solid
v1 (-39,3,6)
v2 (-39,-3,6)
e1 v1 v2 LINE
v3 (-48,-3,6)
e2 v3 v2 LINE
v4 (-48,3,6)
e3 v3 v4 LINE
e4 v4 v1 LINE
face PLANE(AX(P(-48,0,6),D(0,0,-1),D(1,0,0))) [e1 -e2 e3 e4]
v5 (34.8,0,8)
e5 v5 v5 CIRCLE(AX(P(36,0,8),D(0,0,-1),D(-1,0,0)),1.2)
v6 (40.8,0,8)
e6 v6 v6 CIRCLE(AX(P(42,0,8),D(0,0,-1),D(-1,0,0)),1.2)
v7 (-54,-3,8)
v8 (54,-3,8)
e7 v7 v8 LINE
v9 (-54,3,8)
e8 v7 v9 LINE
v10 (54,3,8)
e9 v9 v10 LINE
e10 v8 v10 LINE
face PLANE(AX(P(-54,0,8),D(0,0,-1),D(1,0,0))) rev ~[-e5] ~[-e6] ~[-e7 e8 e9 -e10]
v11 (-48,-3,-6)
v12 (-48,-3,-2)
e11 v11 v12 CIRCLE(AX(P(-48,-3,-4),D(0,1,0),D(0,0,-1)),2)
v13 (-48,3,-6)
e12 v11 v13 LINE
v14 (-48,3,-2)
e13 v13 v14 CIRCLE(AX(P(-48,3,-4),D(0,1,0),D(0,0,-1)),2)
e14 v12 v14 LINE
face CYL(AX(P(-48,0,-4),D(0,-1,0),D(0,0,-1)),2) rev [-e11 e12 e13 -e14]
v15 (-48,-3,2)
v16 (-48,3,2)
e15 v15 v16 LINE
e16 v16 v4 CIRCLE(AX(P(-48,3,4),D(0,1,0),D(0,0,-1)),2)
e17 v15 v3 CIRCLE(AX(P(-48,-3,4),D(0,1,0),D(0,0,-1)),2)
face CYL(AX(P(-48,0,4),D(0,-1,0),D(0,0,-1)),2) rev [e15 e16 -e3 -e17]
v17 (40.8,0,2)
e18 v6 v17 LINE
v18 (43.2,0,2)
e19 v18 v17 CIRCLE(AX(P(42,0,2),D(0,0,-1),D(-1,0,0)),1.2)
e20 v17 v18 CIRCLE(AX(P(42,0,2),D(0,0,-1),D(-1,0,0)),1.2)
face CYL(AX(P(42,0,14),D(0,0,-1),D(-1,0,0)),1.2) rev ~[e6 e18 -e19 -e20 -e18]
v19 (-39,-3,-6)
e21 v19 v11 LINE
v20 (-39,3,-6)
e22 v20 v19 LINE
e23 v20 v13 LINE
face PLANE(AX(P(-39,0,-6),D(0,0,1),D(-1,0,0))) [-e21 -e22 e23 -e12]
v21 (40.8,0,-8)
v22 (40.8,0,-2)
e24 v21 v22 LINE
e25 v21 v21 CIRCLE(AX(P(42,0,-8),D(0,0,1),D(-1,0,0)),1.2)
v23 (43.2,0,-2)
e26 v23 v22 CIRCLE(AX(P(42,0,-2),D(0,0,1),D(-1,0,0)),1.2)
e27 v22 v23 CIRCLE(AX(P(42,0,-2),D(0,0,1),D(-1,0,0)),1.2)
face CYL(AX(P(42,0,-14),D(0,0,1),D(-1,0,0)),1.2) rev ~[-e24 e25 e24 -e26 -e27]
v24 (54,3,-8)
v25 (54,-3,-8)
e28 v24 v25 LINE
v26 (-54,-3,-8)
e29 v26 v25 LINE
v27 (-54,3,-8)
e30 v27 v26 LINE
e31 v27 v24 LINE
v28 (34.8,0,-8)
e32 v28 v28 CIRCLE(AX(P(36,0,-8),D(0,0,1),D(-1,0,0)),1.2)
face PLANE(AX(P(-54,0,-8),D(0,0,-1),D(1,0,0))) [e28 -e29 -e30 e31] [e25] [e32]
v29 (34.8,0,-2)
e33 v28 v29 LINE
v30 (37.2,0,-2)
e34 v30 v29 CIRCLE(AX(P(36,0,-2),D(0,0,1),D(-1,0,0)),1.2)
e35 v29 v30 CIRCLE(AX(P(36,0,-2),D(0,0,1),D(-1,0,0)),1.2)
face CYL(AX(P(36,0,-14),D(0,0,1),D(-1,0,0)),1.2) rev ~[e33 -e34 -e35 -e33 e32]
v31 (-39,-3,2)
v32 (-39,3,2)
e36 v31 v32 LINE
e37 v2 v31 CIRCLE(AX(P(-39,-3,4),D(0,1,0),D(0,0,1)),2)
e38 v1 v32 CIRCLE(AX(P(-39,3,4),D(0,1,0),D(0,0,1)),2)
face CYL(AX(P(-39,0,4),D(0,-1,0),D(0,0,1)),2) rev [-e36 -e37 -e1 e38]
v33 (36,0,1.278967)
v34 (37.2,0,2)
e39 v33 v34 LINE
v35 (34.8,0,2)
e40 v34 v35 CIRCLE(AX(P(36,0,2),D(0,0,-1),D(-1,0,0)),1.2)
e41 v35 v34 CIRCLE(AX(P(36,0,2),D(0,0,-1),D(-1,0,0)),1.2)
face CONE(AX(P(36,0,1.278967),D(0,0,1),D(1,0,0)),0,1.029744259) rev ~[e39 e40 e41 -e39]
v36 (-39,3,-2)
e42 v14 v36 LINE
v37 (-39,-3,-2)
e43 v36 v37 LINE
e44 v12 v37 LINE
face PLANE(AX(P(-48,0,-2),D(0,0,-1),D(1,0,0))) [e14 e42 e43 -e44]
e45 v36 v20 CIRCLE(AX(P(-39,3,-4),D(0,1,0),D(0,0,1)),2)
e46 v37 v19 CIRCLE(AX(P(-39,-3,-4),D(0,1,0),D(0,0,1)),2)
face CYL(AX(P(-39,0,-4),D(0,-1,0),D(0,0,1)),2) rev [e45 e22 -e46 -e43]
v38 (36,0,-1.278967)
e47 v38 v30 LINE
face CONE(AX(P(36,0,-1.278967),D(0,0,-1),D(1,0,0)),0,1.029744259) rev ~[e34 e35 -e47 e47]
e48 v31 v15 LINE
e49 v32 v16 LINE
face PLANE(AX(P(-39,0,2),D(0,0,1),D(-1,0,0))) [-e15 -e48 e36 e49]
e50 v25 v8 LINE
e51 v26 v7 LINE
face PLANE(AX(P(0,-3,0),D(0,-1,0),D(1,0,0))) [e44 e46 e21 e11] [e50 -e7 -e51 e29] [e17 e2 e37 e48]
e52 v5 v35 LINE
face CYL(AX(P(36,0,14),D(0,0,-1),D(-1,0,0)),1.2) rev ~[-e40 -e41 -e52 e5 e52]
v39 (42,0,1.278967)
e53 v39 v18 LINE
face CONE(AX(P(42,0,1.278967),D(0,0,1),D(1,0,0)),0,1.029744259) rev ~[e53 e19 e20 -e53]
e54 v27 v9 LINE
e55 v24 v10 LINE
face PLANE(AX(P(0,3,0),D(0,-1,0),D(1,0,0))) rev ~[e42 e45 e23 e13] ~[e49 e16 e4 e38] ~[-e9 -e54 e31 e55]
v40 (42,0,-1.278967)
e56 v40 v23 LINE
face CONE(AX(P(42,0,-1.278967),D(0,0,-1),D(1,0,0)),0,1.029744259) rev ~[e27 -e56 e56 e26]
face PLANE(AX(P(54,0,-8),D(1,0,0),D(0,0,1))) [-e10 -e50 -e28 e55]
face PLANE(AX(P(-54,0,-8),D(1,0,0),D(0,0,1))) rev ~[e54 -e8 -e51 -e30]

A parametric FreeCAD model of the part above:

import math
import FreeCAD as App
import Part
import Sketcher


def add_polygon(sketch, points):
    """Adds a closed chain of lines whose ends are joined by coincident constraints."""
    first, n = sketch.GeometryCount, len(points)
    for a, b in zip(points, points[1:] + points[:1]):
        sketch.addGeometry(Part.LineSegment(App.Vector(*a, 0), App.Vector(*b, 0)), False)
    for i in range(n):
        sketch.addConstraint(Sketcher.Constraint("Coincident", first + i, 2, first + (i + 1) % n, 1))

doc = App.newDocument("Part")
body = doc.addObject("PartDesign::Body", "Body")

sketch1 = body.newObject("Sketcher::SketchObject", "Sketch")
sketch1.AttachmentSupport = (doc.getObject("XZ_Plane"), [""])
sketch1.MapMode = "FlatFace"
add_polygon(sketch1, [(-54, 8), (-54, -8), (54, -8), (54, 8)])
sketch1.addGeometry(Part.LineSegment(App.Vector(-48, -2, 0), App.Vector(-39, -2, 0)), False)
sketch1.addGeometry(Part.ArcOfCircle(Part.Circle(App.Vector(-39, -4, 0), App.Vector(0, 0, 1), 2), math.radians(-90), math.radians(90)), False)
sketch1.addGeometry(Part.LineSegment(App.Vector(-39, -6, 0), App.Vector(-48, -6, 0)), False)
sketch1.addGeometry(Part.ArcOfCircle(Part.Circle(App.Vector(-48, -4, 0), App.Vector(0, 0, 1), 2), math.radians(90), math.radians(270)), False)
sketch1.addGeometry(Part.LineSegment(App.Vector(-48, 6, 0), App.Vector(-39, 6, 0)), False)
sketch1.addGeometry(Part.ArcOfCircle(Part.Circle(App.Vector(-39, 4, 0), App.Vector(0, 0, 1), 2), math.radians(-90), math.radians(90)), False)
sketch1.addGeometry(Part.LineSegment(App.Vector(-39, 2, 0), App.Vector(-48, 2, 0)), False)
sketch1.addGeometry(Part.ArcOfCircle(Part.Circle(App.Vector(-48, 4, 0), App.Vector(0, 0, 1), 2), math.radians(90), math.radians(270)), False)
sketch1.addConstraint([
    Sketcher.Constraint("Tangent", 4, 2, 5, 2),
    Sketcher.Constraint("Tangent", 5, 1, 6, 1),
    Sketcher.Constraint("Tangent", 6, 2, 7, 2),
    Sketcher.Constraint("Tangent", 7, 1, 4, 1),
    Sketcher.Constraint("Tangent", 8, 2, 9, 2),
    Sketcher.Constraint("Tangent", 9, 1, 10, 1),
    Sketcher.Constraint("Tangent", 10, 2, 11, 2),
    Sketcher.Constraint("Tangent", 11, 1, 8, 1),
    Sketcher.Constraint("Vertical", 0),
    Sketcher.Constraint("Horizontal", 1),
    Sketcher.Constraint("Vertical", 2),
    Sketcher.Constraint("Horizontal", 3),
    Sketcher.Constraint("Horizontal", 4),
    Sketcher.Constraint("Horizontal", 6),
    Sketcher.Constraint("Horizontal", 8),
    Sketcher.Constraint("Horizontal", 10),
    Sketcher.Constraint("Equal", 7, 9),
    Sketcher.Constraint("Symmetric", 0, 2, 2, 2, -1, 1),
    Sketcher.Constraint("Symmetric", 5, 3, 9, 3, -1),
    Sketcher.Constraint("Vertical", 7, 3, 11, 3),
    Sketcher.Constraint("Radius", 5, 2.0),
    Sketcher.Constraint("DistanceX", 1, 1, 1, 2, 108.0),
    Sketcher.Constraint("DistanceX", 4, 1, 4, 2, 9.0),
    Sketcher.Constraint("DistanceY", 0, 2, 0, 1, 16.0),
    Sketcher.Constraint("DistanceX", 5, 3, -1, 1, 39.0),
    Sketcher.Constraint("DistanceY", 5, 3, -1, 1, 4.0),
])
pad1 = body.newObject("PartDesign::Pad", "Pad")
pad1.Profile = sketch1
pad1.Length = 6
pad1.Midplane = True

sketch2 = body.newObject("Sketcher::SketchObject", "Sketch001")
sketch2.AttachmentSupport = (doc.getObject("XY_Plane"), [""])
sketch2.MapMode = "FlatFace"
sketch2.AttachmentOffset = App.Placement(App.Vector(0, 0, -8), App.Rotation())
sketch2.addGeometry([
    Part.Circle(App.Vector(36, 0, 0), App.Vector(0, 0, 1), 1.2),
    Part.Circle(App.Vector(42, 0, 0), App.Vector(0, 0, 1), 1.2),
], False)
sketch2.addConstraint([
    Sketcher.Constraint("Equal", 0, 1),
    Sketcher.Constraint("PointOnObject", 0, 3, -1),
    Sketcher.Constraint("PointOnObject", 1, 3, -1),
    Sketcher.Constraint("Diameter", 0, 2.4),
    Sketcher.Constraint("DistanceX", -1, 1, 0, 3, 36.0),
    Sketcher.Constraint("DistanceX", -1, 1, 1, 3, 42.0),
])
doc.recompute()
hole = body.newObject("PartDesign::Hole", "Hole")
hole.Profile = sketch2
hole.ThreadType = "None"
hole.Diameter = 2.4
hole.DepthType = "Dimension"
hole.Depth = 6
hole.DrillPoint = "Angled"
hole.DrillPointAngle = 118
hole.Reversed = True

sketch3 = body.newObject("Sketcher::SketchObject", "Sketch002")
sketch3.AttachmentSupport = (doc.getObject("XY_Plane"), [""])
sketch3.MapMode = "FlatFace"
sketch3.AttachmentOffset = App.Placement(App.Vector(0, 0, 8), App.Rotation())
sketch3.addGeometry([
    Part.Circle(App.Vector(36, 0, 0), App.Vector(0, 0, 1), 1.2),
    Part.Circle(App.Vector(42, 0, 0), App.Vector(0, 0, 1), 1.2),
], False)
sketch3.addConstraint([
    Sketcher.Constraint("Equal", 0, 1),
    Sketcher.Constraint("PointOnObject", 0, 3, -1),
    Sketcher.Constraint("PointOnObject", 1, 3, -1),
    Sketcher.Constraint("Diameter", 0, 2.4),
    Sketcher.Constraint("DistanceX", -1, 1, 0, 3, 36.0),
    Sketcher.Constraint("DistanceX", -1, 1, 1, 3, 42.0),
])
doc.recompute()
hole2 = body.newObject("PartDesign::Hole", "Hole001")
hole2.Profile = sketch3
hole2.ThreadType = "None"
hole2.Diameter = 2.4
hole2.DepthType = "Dimension"
hole2.Depth = 6
hole2.DrillPoint = "Angled"
hole2.DrillPointAngle = 118

doc.recompute()
